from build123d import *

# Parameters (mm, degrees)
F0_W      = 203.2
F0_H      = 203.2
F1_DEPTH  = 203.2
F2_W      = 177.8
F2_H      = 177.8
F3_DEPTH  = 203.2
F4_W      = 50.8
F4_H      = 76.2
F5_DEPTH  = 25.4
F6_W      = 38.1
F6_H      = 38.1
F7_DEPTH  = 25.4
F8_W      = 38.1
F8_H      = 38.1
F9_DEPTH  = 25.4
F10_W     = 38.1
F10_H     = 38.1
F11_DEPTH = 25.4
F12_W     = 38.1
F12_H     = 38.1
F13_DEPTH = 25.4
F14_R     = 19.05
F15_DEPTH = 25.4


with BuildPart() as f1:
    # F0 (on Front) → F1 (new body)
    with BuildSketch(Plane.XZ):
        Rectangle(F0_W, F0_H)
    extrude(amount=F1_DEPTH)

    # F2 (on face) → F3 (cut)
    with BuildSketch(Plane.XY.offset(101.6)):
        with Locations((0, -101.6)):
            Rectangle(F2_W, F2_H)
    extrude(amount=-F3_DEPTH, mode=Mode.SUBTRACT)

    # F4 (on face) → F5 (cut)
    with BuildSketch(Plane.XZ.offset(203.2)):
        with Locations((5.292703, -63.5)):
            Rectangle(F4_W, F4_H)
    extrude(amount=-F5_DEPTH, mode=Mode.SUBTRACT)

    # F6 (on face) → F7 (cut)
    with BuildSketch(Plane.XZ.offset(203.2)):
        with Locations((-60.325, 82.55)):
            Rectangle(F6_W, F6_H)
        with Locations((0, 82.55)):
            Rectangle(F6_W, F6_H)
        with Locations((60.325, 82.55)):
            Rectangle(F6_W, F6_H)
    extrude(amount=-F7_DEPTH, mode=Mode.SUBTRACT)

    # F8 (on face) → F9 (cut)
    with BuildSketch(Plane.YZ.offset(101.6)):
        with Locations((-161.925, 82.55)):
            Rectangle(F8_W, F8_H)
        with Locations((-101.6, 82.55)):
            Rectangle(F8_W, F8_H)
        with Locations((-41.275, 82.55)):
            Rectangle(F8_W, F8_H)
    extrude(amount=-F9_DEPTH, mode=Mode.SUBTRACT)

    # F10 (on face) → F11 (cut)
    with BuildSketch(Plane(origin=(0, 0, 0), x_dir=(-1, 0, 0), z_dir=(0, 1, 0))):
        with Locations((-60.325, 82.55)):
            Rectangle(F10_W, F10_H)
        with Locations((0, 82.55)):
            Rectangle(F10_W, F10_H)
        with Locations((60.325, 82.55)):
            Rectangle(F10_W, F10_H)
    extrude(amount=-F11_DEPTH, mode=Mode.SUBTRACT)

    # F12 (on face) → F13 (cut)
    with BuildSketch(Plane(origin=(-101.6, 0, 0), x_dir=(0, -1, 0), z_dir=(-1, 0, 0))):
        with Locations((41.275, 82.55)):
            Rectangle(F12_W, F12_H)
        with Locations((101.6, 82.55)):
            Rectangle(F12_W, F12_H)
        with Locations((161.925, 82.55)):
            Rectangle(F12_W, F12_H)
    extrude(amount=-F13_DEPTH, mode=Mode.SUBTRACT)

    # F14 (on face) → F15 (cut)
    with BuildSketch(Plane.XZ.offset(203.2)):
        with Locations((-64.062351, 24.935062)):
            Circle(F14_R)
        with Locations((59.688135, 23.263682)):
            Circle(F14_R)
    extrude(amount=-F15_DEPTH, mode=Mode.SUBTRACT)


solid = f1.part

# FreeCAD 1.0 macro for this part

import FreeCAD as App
import Part
import Sketcher

V = App.Vector
Q = App.Units.Quantity


def add_polygon(sketch, points):
    """Adds a closed chain of lines whose ends are joined by coincident constraints."""
    first, n = sketch.GeometryCount, len(points)
    for a, b in zip(points, points[1:] + points[:1]):
        sketch.addGeometry(Part.LineSegment(App.Vector(*a, 0), App.Vector(*b, 0)), False)
    for i in range(n):
        sketch.addConstraint(Sketcher.Constraint("Coincident", first + i, 2, first + (i + 1) % n, 1))

doc = App.newDocument("Part")
body = doc.addObject("PartDesign::Body", "Body")

# Sketch on XZ plane
sketch1 = body.newObject("Sketcher::SketchObject", "Sketch")
sketch1.AttachmentSupport = (doc.getObject("XZ_Plane"), [""])
sketch1.MapMode = "FlatFace"
add_polygon(sketch1, [(-102, 102), (-102, -102), (102, -102), (102, 102)])  # lines 0-3
sketch1.addConstraint(Sketcher.Constraint("Vertical", 0))
sketch1.addConstraint(Sketcher.Constraint("Horizontal", 1))
sketch1.addConstraint(Sketcher.Constraint("Vertical", 2))
sketch1.addConstraint(Sketcher.Constraint("Horizontal", 3))
sketch1.addConstraint(Sketcher.Constraint("Symmetric", 0, 2, 2, 2, -1, 1))
sketch1.addConstraint(Sketcher.Constraint("Equal", 3, 0))
sketch1.addConstraint(Sketcher.Constraint("DistanceX", 1, 1, 1, 2, Q("8 in")))
pad1 = body.newObject("PartDesign::Pad", "Pad")
pad1.Profile = sketch1
pad1.Length = Q("8 in")

# Sketch on XY plane
sketch2 = body.newObject("Sketcher::SketchObject", "Sketch001")
sketch2.AttachmentSupport = (doc.getObject("XY_Plane"), [""])
sketch2.MapMode = "FlatFace"
sketch2.AttachmentOffset = App.Placement(V(0, 0, 4 * 25.4), App.Rotation())
add_polygon(sketch2, [(-89, -13), (-89, -190), (89, -190), (89, -13)])  # lines 0-3
sketch2.addConstraint(Sketcher.Constraint("Vertical", 0))
sketch2.addConstraint(Sketcher.Constraint("Horizontal", 1))
sketch2.addConstraint(Sketcher.Constraint("Vertical", 2))
sketch2.addConstraint(Sketcher.Constraint("Horizontal", 3))
sketch2.addConstraint(Sketcher.Constraint("Equal", 3, 0))
sketch2.addConstraint(Sketcher.Constraint("DistanceX", 1, 1, 1, 2, Q("7 in")))
sketch2.addConstraint(Sketcher.Constraint("DistanceX", 0, 2, -1, 1, Q("3.5 in")))
sketch2.addConstraint(Sketcher.Constraint("DistanceY", 0, 2, -1, 1, Q("7.5 in")))
pocket1 = body.newObject("PartDesign::Pocket", "Pocket")
pocket1.Profile = sketch2
pocket1.Length = Q("8 in")

# Sketch on XZ plane
sketch3 = body.newObject("Sketcher::SketchObject", "Sketch002")
sketch3.AttachmentSupport = (doc.getObject("XZ_Plane"), [""])
sketch3.MapMode = "FlatFace"
sketch3.AttachmentOffset = App.Placement(V(0, 0, 8 * 25.4), App.Rotation())
add_polygon(sketch3, [(-20, -25), (-20, -102), (31, -102), (31, -25)])  # lines 0-3
sketch3.addConstraint(Sketcher.Constraint("Vertical", 0))
sketch3.addConstraint(Sketcher.Constraint("Horizontal", 1))
sketch3.addConstraint(Sketcher.Constraint("Vertical", 2))
sketch3.addConstraint(Sketcher.Constraint("Horizontal", 3))
sketch3.addConstraint(Sketcher.Constraint("DistanceX", 1, 1, 1, 2, Q("2 in")))
sketch3.addConstraint(Sketcher.Constraint("DistanceY", 0, 2, 0, 1, Q("3 in")))
sketch3.addConstraint(Sketcher.Constraint("DistanceY", 0, 2, -1, 1, Q("4 in")))
sketch3.addConstraint(Sketcher.Constraint("DistanceX", 0, 2, -1, 1, 20.107297))
pocket2 = body.newObject("PartDesign::Pocket", "Pocket001")
pocket2.Profile = sketch3
pocket2.Length = Q("1 in")

# Sketch on XZ plane
sketch4 = body.newObject("Sketcher::SketchObject", "Sketch003")
sketch4.AttachmentSupport = (doc.getObject("XZ_Plane"), [""])
sketch4.MapMode = "FlatFace"
sketch4.AttachmentOffset = App.Placement(V(0, 0, 8 * 25.4), App.Rotation())
add_polygon(sketch4, [(-79, 102), (-79, 64), (-41, 64), (-41, 102)])  # lines 0-3
add_polygon(sketch4, [(-19, 102), (-19, 64), (19, 64), (19, 102)])  # lines 4-7
add_polygon(sketch4, [(41, 102), (41, 64), (79, 64), (79, 102)])  # lines 8-11
sketch4.addConstraint(Sketcher.Constraint("Vertical", 0))
sketch4.addConstraint(Sketcher.Constraint("Horizontal", 1))
sketch4.addConstraint(Sketcher.Constraint("Vertical", 2))
sketch4.addConstraint(Sketcher.Constraint("Horizontal", 3))
sketch4.addConstraint(Sketcher.Constraint("Vertical", 4))
sketch4.addConstraint(Sketcher.Constraint("Horizontal", 5))
sketch4.addConstraint(Sketcher.Constraint("Vertical", 6))
sketch4.addConstraint(Sketcher.Constraint("Horizontal", 7))
sketch4.addConstraint(Sketcher.Constraint("Vertical", 8))
sketch4.addConstraint(Sketcher.Constraint("Horizontal", 9))
sketch4.addConstraint(Sketcher.Constraint("Vertical", 10))
sketch4.addConstraint(Sketcher.Constraint("Horizontal", 11))
sketch4.addConstraint(Sketcher.Constraint("Symmetric", 1, 2, 8, 2, -2))
sketch4.addConstraint(Sketcher.Constraint("Symmetric", 3, 2, 10, 2, -2))
sketch4.addConstraint(Sketcher.Constraint("Horizontal", 1, 2, 4, 2))
sketch4.addConstraint(Sketcher.Constraint("Horizontal", 3, 2, 6, 2))
sketch4.addConstraint(Sketcher.Constraint("Equal", 3, 5))
sketch4.addConstraint(Sketcher.Constraint("Equal", 11, 0))
sketch4.addConstraint(Sketcher.Constraint("DistanceX", 1, 1, 1, 2, Q("1.5 in")))
sketch4.addConstraint(Sketcher.Constraint("DistanceY", -1, 1, 2, 2, Q("4 in")))
sketch4.addConstraint(Sketcher.Constraint("DistanceX", 4, 2, -1, 1, Q("0.75 in")))
sketch4.addConstraint(Sketcher.Constraint("DistanceX", 1, 2, 8, 2, Q("3.25 in")))
pocket3 = body.newObject("PartDesign::Pocket", "Pocket002")
pocket3.Profile = sketch4
pocket3.Length = Q("1 in")

# Sketch on YZ plane
sketch5 = body.newObject("Sketcher::SketchObject", "Sketch004")
sketch5.AttachmentSupport = (doc.getObject("YZ_Plane"), [""])
sketch5.MapMode = "FlatFace"
sketch5.AttachmentOffset = App.Placement(V(0, 0, 4 * 25.4), App.Rotation())
add_polygon(sketch5, [(-181, 102), (-181, 64), (-143, 64), (-143, 102)])  # lines 0-3
add_polygon(sketch5, [(-121, 102), (-121, 64), (-83, 64), (-83, 102)])  # lines 4-7
add_polygon(sketch5, [(-60, 102), (-60, 64), (-22, 64), (-22, 102)])  # lines 8-11
sketch5.addConstraint(Sketcher.Constraint("Vertical", 0))
sketch5.addConstraint(Sketcher.Constraint("Horizontal", 1))
sketch5.addConstraint(Sketcher.Constraint("Vertical", 2))
sketch5.addConstraint(Sketcher.Constraint("Horizontal", 3))
sketch5.addConstraint(Sketcher.Constraint("Vertical", 4))
sketch5.addConstraint(Sketcher.Constraint("Horizontal", 5))
sketch5.addConstraint(Sketcher.Constraint("Vertical", 6))
sketch5.addConstraint(Sketcher.Constraint("Horizontal", 7))
sketch5.addConstraint(Sketcher.Constraint("Vertical", 8))
sketch5.addConstraint(Sketcher.Constraint("Horizontal", 9))
sketch5.addConstraint(Sketcher.Constraint("Vertical", 10))
sketch5.addConstraint(Sketcher.Constraint("Horizontal", 11))
sketch5.addConstraint(Sketcher.Constraint("Horizontal", 1, 2, 4, 2))
sketch5.addConstraint(Sketcher.Constraint("Horizontal", 3, 2, 6, 2))
sketch5.addConstraint(Sketcher.Constraint("Horizontal", 5, 2, 8, 2))
sketch5.addConstraint(Sketcher.Constraint("Horizontal", 7, 2, 10, 2))
sketch5.addConstraint(Sketcher.Constraint("Equal", 3, 5))
sketch5.addConstraint(Sketcher.Constraint("Equal", 7, 9))
sketch5.addConstraint(Sketcher.Constraint("Equal", 11, 0))
sketch5.addConstraint(Sketcher.Constraint("DistanceX", 1, 1, 1, 2, Q("1.5 in")))
sketch5.addConstraint(Sketcher.Constraint("DistanceY", -1, 1, 2, 2, Q("4 in")))
sketch5.addConstraint(Sketcher.Constraint("DistanceX", 4, 2, -1, 1, Q("4.75 in")))
sketch5.addConstraint(Sketcher.Constraint("DistanceX", 1, 2, 8, 2, Q("3.25 in")))
sketch5.addConstraint(Sketcher.Constraint("DistanceX", 0, 2, -1, 1, Q("7.125 in")))
pocket4 = body.newObject("PartDesign::Pocket", "Pocket003")
pocket4.Profile = sketch5
pocket4.Length = Q("1 in")

# Sketch on XZ plane
sketch6 = body.newObject("Sketcher::SketchObject", "Sketch005")
sketch6.AttachmentSupport = (doc.getObject("XZ_Plane"), [""])
sketch6.MapMode = "FlatFace"
add_polygon(sketch6, [(79, 102), (79, 64), (41, 64), (41, 102)])  # lines 0-3
add_polygon(sketch6, [(19, 102), (19, 64), (-19, 64), (-19, 102)])  # lines 4-7
add_polygon(sketch6, [(-41, 102), (-41, 64), (-79, 64), (-79, 102)])  # lines 8-11
sketch6.addConstraint(Sketcher.Constraint("Vertical", 0))
sketch6.addConstraint(Sketcher.Constraint("Horizontal", 1))
sketch6.addConstraint(Sketcher.Constraint("Vertical", 2))
sketch6.addConstraint(Sketcher.Constraint("Horizontal", 3))
sketch6.addConstraint(Sketcher.Constraint("Vertical", 4))
sketch6.addConstraint(Sketcher.Constraint("Horizontal", 5))
sketch6.addConstraint(Sketcher.Constraint("Vertical", 6))
sketch6.addConstraint(Sketcher.Constraint("Horizontal", 7))
sketch6.addConstraint(Sketcher.Constraint("Vertical", 8))
sketch6.addConstraint(Sketcher.Constraint("Horizontal", 9))
sketch6.addConstraint(Sketcher.Constraint("Vertical", 10))
sketch6.addConstraint(Sketcher.Constraint("Horizontal", 11))
sketch6.addConstraint(Sketcher.Constraint("Symmetric", 1, 2, 8, 2, -2))
sketch6.addConstraint(Sketcher.Constraint("Symmetric", 3, 2, 10, 2, -2))
sketch6.addConstraint(Sketcher.Constraint("Horizontal", 1, 2, 4, 2))
sketch6.addConstraint(Sketcher.Constraint("Horizontal", 3, 2, 6, 2))
sketch6.addConstraint(Sketcher.Constraint("Equal", 3, 5))
sketch6.addConstraint(Sketcher.Constraint("Equal", 11, 0))
sketch6.addConstraint(Sketcher.Constraint("DistanceX", 1, 2, 1, 1, Q("1.5 in")))
sketch6.addConstraint(Sketcher.Constraint("DistanceY", -1, 1, 2, 2, Q("4 in")))
sketch6.addConstraint(Sketcher.Constraint("DistanceX", -1, 1, 4, 2, Q("0.75 in")))
sketch6.addConstraint(Sketcher.Constraint("DistanceX", 8, 2, 1, 2, Q("3.25 in")))
pocket5 = body.newObject("PartDesign::Pocket", "Pocket004")
pocket5.Profile = sketch6
pocket5.Length = Q("1 in")
pocket5.Reversed = True

# Sketch on YZ plane
sketch7 = body.newObject("Sketcher::SketchObject", "Sketch006")
sketch7.AttachmentSupport = (doc.getObject("YZ_Plane"), [""])
sketch7.MapMode = "FlatFace"
sketch7.AttachmentOffset = App.Placement(V(0, 0, -4 * 25.4), App.Rotation())
add_polygon(sketch7, [(-22, 102), (-22, 64), (-60, 64), (-60, 102)])  # lines 0-3
add_polygon(sketch7, [(-83, 102), (-83, 64), (-121, 64), (-121, 102)])  # lines 4-7
add_polygon(sketch7, [(-143, 102), (-143, 64), (-181, 64), (-181, 102)])  # lines 8-11
sketch7.addConstraint(Sketcher.Constraint("Vertical", 0))
sketch7.addConstraint(Sketcher.Constraint("Horizontal", 1))
sketch7.addConstraint(Sketcher.Constraint("Vertical", 2))
sketch7.addConstraint(Sketcher.Constraint("Horizontal", 3))
sketch7.addConstraint(Sketcher.Constraint("Vertical", 4))
sketch7.addConstraint(Sketcher.Constraint("Horizontal", 5))
sketch7.addConstraint(Sketcher.Constraint("Vertical", 6))
sketch7.addConstraint(Sketcher.Constraint("Horizontal", 7))
sketch7.addConstraint(Sketcher.Constraint("Vertical", 8))
sketch7.addConstraint(Sketcher.Constraint("Horizontal", 9))
sketch7.addConstraint(Sketcher.Constraint("Vertical", 10))
sketch7.addConstraint(Sketcher.Constraint("Horizontal", 11))
sketch7.addConstraint(Sketcher.Constraint("Horizontal", 1, 2, 4, 2))
sketch7.addConstraint(Sketcher.Constraint("Horizontal", 3, 2, 6, 2))
sketch7.addConstraint(Sketcher.Constraint("Horizontal", 5, 2, 8, 2))
sketch7.addConstraint(Sketcher.Constraint("Horizontal", 7, 2, 10, 2))
sketch7.addConstraint(Sketcher.Constraint("Equal", 3, 5))
sketch7.addConstraint(Sketcher.Constraint("Equal", 7, 9))
sketch7.addConstraint(Sketcher.Constraint("Equal", 11, 0))
sketch7.addConstraint(Sketcher.Constraint("DistanceX", 1, 2, 1, 1, Q("1.5 in")))
sketch7.addConstraint(Sketcher.Constraint("DistanceY", -1, 1, 2, 2, Q("4 in")))
sketch7.addConstraint(Sketcher.Constraint("DistanceX", 4, 2, -1, 1, Q("3.25 in")))
sketch7.addConstraint(Sketcher.Constraint("DistanceX", 8, 2, 1, 2, Q("3.25 in")))
sketch7.addConstraint(Sketcher.Constraint("DistanceX", 0, 2, -1, 1, Q("0.875 in")))
pocket6 = body.newObject("PartDesign::Pocket", "Pocket005")
pocket6.Profile = sketch7
pocket6.Length = Q("1 in")
pocket6.Reversed = True

# Sketch on XZ plane
sketch8 = body.newObject("Sketcher::SketchObject", "Sketch007")
sketch8.AttachmentSupport = (doc.getObject("XZ_Plane"), [""])
sketch8.MapMode = "FlatFace"
sketch8.AttachmentOffset = App.Placement(V(0, 0, 8 * 25.4), App.Rotation())
sketch8.addGeometry(Part.Circle(V(-64, 25, 0), V(0, 0, 1), 19), False)
sketch8.addGeometry(Part.Circle(V(60, 23, 0), V(0, 0, 1), 19), False)
sketch8.addConstraint(Sketcher.Constraint("Equal", 0, 1))
sketch8.addConstraint(Sketcher.Constraint("Diameter", 0, Q("1.5 in")))
sketch8.addConstraint(Sketcher.Constraint("DistanceX", 0, 3, -1, 1, 64.062351))
sketch8.addConstraint(Sketcher.Constraint("DistanceY", -1, 1, 0, 3, 24.935062))
sketch8.addConstraint(Sketcher.Constraint("DistanceY", -1, 1, 1, 3, 23.263682))
sketch8.addConstraint(Sketcher.Constraint("DistanceX", -1, 1, 1, 3, 59.688135))
pocket7 = body.newObject("PartDesign::Pocket", "Pocket006")
pocket7.Profile = sketch8
pocket7.Length = Q("1 in")

doc.recompute()
